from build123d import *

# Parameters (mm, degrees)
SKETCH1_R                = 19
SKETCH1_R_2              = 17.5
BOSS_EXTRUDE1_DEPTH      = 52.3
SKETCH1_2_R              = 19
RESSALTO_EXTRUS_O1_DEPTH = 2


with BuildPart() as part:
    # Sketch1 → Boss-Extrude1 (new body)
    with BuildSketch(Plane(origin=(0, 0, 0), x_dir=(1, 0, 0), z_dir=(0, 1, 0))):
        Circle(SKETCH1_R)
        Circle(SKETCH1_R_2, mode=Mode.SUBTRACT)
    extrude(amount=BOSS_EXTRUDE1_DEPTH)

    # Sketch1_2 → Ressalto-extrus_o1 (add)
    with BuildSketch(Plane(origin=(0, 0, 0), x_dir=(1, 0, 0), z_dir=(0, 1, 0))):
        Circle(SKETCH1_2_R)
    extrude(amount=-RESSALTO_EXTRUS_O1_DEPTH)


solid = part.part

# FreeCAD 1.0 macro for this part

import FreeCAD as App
import Part
import Sketcher
Q = App.Units.Quantity

doc = App.newDocument("Part")
body = doc.addObject("PartDesign::Body", "Body")

# Sketch on XZ plane
sketch1 = doc.addObject("Sketcher::SketchObject", "Sketch")
body.addObject(sketch1)
sketch1.AttachmentSupport = (doc.XZ_Plane, [""])
sketch1.MapMode = "FlatFace"
sketch1.addGeometry(Part.Circle(App.Vector(0, 0, 0), App.Vector(0, 0, 1), 19), False)
sketch1.addGeometry(Part.Circle(App.Vector(0, 0, 0), App.Vector(0, 0, 1), 17.5), False)
sketch1.addConstraint(Sketcher.Constraint("Coincident", 0, 3, -1, 1))
sketch1.addConstraint(Sketcher.Constraint("Coincident", 1, 3, -1, 1))
sketch1.addConstraint(Sketcher.Constraint("Diameter", 0, Q("38 mm")))
sketch1.addConstraint(Sketcher.Constraint("Diameter", 1, Q("35 mm")))
pad1 = doc.addObject("PartDesign::Pad", "Pad")
body.addObject(pad1)
pad1.Profile = sketch1
pad1.Length = 52.3
pad1.Reversed = True

# Sketch on XZ plane
sketch2 = doc.addObject("Sketcher::SketchObject", "Sketch001")
body.addObject(sketch2)
sketch2.AttachmentSupport = (doc.XZ_Plane, [""])
sketch2.MapMode = "FlatFace"
sketch2.addGeometry(Part.Circle(App.Vector(0, 0, 0), App.Vector(0, 0, 1), 19), False)
sketch2.addConstraint(Sketcher.Constraint("Coincident", 0, 3, -1, 1))
sketch2.addConstraint(Sketcher.Constraint("Diameter", 0, Q("38 mm")))
pad2 = doc.addObject("PartDesign::Pad", "Pad001")
body.addObject(pad2)
pad2.Profile = sketch2
pad2.Length = 2

doc.recompute()
